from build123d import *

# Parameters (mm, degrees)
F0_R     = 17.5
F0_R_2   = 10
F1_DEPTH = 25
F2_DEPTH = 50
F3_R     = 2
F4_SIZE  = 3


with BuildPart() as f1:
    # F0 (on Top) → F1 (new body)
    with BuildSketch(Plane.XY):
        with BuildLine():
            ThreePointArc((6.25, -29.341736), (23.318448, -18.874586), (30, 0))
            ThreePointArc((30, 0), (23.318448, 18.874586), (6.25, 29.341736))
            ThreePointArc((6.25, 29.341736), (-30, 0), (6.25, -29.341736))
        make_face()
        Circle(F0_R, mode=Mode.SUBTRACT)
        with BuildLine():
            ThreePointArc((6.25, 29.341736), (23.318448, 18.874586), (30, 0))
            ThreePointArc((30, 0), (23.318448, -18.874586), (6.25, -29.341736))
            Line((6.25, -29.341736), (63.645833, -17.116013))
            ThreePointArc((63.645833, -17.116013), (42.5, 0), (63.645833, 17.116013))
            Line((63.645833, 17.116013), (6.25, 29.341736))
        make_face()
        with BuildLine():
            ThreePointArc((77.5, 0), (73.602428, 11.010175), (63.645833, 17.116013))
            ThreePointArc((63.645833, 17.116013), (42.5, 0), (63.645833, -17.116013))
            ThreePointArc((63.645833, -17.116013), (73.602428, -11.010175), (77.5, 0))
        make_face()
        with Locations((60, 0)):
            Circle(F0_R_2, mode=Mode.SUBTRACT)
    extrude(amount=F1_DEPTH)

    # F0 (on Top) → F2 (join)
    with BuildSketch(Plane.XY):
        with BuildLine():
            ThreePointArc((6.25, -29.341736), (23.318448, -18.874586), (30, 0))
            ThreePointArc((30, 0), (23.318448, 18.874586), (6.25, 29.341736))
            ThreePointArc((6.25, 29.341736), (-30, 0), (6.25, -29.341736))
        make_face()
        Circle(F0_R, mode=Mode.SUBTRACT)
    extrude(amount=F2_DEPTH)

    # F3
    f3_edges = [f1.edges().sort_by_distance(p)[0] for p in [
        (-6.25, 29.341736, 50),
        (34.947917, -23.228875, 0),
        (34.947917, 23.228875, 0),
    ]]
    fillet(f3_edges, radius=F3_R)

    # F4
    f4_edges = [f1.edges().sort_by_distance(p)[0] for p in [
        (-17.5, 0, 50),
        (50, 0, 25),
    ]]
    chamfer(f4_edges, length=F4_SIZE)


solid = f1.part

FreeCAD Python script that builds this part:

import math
import FreeCAD as App
import Part
import Sketcher

V = App.Vector


def edges_at(feature, points):
    """Names of the edges that pass closest to the given points."""
    edges = feature.Shape.Edges
    near = lambda p: min(range(len(edges)), key=lambda i: edges[i].distToShape(Part.Vertex(*p))[0])
    return sorted({f"Edge{near(p) + 1}" for p in points})

doc = App.newDocument("Part")
body = doc.addObject("PartDesign::Body", "Body")

# Sketch on XY plane
sketch1 = body.newObject("Sketcher::SketchObject", "Sketch")
sketch1.AttachmentSupport = (doc.getObject("XY_Plane"), [""])
sketch1.MapMode = "FlatFace"
sketch1.addGeometry([
    Part.ArcOfCircle(Part.Circle(V(0, 0, 0), V(0, 0, 1), 30), math.radians(78), math.radians(282)),  # 0
    Part.LineSegment(V(6, -29, 0), V(64, -17, 0)),  # 1
    Part.ArcOfCircle(Part.Circle(V(60, 0, 0), V(0, 0, 1), 17), math.radians(-78), math.radians(0)),  # 2
    Part.ArcOfCircle(Part.Circle(V(60, 0, 0), V(0, 0, 1), 17), math.radians(0), math.radians(78)),  # 3
    Part.LineSegment(V(64, 17, 0), V(6, 29, 0)),  # 4
    Part.Circle(V(0, 0, 0), V(0, 0, 1), 18),  # 5
    Part.Circle(V(60, 0, 0), V(0, 0, 1), 10),  # 6
], False)
sketch1.addConstraint([
    Sketcher.Constraint("Tangent", 0, 2, 1, 1),
    Sketcher.Constraint("Tangent", 1, 2, 2, 1),
    Sketcher.Constraint("Tangent", 2, 2, 3, 1),
    Sketcher.Constraint("Tangent", 3, 2, 4, 1),
    Sketcher.Constraint("Tangent", 4, 2, 0, 1),
    Sketcher.Constraint("Coincident", 0, 3, -1, 1),
    Sketcher.Constraint("Coincident", 5, 3, -1, 1),
    Sketcher.Constraint("Coincident", 6, 3, 2, 3),
    Sketcher.Constraint("Equal", 2, 3),
    Sketcher.Constraint("Equal", 3, 5),
    Sketcher.Constraint("PointOnObject", 2, 3, -1),
    Sketcher.Constraint("PointOnObject", 2, 2, -1),
    Sketcher.Constraint("Diameter", 5, 35.0),
    Sketcher.Constraint("Diameter", 6, 20.0),
    Sketcher.Constraint("Radius", 0, 30.0),
    Sketcher.Constraint("DistanceX", -1, 1, 2, 3, 60.0),
])
pad1 = body.newObject("PartDesign::Pad", "Pad")
pad1.Profile = sketch1
pad1.Length = 25

# Sketch on XY plane
sketch2 = body.newObject("Sketcher::SketchObject", "Sketch001")
sketch2.AttachmentSupport = (doc.getObject("XY_Plane"), [""])
sketch2.MapMode = "FlatFace"
sketch2.addGeometry([
    Part.ArcOfCircle(Part.Circle(V(0, 0, 0), V(0, 0, 1), 30), math.radians(-78), math.radians(0)),
    Part.ArcOfCircle(Part.Circle(V(0, 0, 0), V(0, 0, 1), 30), math.radians(0), math.radians(78)),
    Part.ArcOfCircle(Part.Circle(V(0, 0, 0), V(0, 0, 1), 30), math.radians(78), math.radians(282)),
    Part.Circle(V(0, 0, 0), V(0, 0, 1), 18),
], False)
sketch2.addConstraint([
    Sketcher.Constraint("Tangent", 0, 2, 1, 1),
    Sketcher.Constraint("Tangent", 1, 2, 2, 1),
    Sketcher.Constraint("Tangent", 2, 2, 0, 1),
    Sketcher.Constraint("Coincident", 0, 3, -1, 1),
    Sketcher.Constraint("Coincident", 3, 3, -1, 1),
    Sketcher.Constraint("PointOnObject", 0, 2, -1),
    Sketcher.Constraint("Vertical", 1, 2, 2, 2),
    Sketcher.Constraint("Diameter", 3, 35.0),
    Sketcher.Constraint("Radius", 0, 29.999998),
    Sketcher.Constraint("DistanceX", -1, 1, 1, 2, 6.25),
])
pad2 = body.newObject("PartDesign::Pad", "Pad001")
pad2.Profile = sketch2
pad2.Length = 50
doc.recompute()

fillet = body.newObject("PartDesign::Fillet", "Fillet")
fillet.Base = (pad2, edges_at(pad2, [(-30, 0, 50), (34.948, -23.229, 0), (34.948, 23.229, 0)]))
fillet.Radius = 2
doc.recompute()

chamfer = body.newObject("PartDesign::Chamfer", "Chamfer")
chamfer.Base = (fillet, edges_at(fillet, [(-17.5, 0, 50), (50, 0, 25)]))
chamfer.Size = 3

doc.recompute()
